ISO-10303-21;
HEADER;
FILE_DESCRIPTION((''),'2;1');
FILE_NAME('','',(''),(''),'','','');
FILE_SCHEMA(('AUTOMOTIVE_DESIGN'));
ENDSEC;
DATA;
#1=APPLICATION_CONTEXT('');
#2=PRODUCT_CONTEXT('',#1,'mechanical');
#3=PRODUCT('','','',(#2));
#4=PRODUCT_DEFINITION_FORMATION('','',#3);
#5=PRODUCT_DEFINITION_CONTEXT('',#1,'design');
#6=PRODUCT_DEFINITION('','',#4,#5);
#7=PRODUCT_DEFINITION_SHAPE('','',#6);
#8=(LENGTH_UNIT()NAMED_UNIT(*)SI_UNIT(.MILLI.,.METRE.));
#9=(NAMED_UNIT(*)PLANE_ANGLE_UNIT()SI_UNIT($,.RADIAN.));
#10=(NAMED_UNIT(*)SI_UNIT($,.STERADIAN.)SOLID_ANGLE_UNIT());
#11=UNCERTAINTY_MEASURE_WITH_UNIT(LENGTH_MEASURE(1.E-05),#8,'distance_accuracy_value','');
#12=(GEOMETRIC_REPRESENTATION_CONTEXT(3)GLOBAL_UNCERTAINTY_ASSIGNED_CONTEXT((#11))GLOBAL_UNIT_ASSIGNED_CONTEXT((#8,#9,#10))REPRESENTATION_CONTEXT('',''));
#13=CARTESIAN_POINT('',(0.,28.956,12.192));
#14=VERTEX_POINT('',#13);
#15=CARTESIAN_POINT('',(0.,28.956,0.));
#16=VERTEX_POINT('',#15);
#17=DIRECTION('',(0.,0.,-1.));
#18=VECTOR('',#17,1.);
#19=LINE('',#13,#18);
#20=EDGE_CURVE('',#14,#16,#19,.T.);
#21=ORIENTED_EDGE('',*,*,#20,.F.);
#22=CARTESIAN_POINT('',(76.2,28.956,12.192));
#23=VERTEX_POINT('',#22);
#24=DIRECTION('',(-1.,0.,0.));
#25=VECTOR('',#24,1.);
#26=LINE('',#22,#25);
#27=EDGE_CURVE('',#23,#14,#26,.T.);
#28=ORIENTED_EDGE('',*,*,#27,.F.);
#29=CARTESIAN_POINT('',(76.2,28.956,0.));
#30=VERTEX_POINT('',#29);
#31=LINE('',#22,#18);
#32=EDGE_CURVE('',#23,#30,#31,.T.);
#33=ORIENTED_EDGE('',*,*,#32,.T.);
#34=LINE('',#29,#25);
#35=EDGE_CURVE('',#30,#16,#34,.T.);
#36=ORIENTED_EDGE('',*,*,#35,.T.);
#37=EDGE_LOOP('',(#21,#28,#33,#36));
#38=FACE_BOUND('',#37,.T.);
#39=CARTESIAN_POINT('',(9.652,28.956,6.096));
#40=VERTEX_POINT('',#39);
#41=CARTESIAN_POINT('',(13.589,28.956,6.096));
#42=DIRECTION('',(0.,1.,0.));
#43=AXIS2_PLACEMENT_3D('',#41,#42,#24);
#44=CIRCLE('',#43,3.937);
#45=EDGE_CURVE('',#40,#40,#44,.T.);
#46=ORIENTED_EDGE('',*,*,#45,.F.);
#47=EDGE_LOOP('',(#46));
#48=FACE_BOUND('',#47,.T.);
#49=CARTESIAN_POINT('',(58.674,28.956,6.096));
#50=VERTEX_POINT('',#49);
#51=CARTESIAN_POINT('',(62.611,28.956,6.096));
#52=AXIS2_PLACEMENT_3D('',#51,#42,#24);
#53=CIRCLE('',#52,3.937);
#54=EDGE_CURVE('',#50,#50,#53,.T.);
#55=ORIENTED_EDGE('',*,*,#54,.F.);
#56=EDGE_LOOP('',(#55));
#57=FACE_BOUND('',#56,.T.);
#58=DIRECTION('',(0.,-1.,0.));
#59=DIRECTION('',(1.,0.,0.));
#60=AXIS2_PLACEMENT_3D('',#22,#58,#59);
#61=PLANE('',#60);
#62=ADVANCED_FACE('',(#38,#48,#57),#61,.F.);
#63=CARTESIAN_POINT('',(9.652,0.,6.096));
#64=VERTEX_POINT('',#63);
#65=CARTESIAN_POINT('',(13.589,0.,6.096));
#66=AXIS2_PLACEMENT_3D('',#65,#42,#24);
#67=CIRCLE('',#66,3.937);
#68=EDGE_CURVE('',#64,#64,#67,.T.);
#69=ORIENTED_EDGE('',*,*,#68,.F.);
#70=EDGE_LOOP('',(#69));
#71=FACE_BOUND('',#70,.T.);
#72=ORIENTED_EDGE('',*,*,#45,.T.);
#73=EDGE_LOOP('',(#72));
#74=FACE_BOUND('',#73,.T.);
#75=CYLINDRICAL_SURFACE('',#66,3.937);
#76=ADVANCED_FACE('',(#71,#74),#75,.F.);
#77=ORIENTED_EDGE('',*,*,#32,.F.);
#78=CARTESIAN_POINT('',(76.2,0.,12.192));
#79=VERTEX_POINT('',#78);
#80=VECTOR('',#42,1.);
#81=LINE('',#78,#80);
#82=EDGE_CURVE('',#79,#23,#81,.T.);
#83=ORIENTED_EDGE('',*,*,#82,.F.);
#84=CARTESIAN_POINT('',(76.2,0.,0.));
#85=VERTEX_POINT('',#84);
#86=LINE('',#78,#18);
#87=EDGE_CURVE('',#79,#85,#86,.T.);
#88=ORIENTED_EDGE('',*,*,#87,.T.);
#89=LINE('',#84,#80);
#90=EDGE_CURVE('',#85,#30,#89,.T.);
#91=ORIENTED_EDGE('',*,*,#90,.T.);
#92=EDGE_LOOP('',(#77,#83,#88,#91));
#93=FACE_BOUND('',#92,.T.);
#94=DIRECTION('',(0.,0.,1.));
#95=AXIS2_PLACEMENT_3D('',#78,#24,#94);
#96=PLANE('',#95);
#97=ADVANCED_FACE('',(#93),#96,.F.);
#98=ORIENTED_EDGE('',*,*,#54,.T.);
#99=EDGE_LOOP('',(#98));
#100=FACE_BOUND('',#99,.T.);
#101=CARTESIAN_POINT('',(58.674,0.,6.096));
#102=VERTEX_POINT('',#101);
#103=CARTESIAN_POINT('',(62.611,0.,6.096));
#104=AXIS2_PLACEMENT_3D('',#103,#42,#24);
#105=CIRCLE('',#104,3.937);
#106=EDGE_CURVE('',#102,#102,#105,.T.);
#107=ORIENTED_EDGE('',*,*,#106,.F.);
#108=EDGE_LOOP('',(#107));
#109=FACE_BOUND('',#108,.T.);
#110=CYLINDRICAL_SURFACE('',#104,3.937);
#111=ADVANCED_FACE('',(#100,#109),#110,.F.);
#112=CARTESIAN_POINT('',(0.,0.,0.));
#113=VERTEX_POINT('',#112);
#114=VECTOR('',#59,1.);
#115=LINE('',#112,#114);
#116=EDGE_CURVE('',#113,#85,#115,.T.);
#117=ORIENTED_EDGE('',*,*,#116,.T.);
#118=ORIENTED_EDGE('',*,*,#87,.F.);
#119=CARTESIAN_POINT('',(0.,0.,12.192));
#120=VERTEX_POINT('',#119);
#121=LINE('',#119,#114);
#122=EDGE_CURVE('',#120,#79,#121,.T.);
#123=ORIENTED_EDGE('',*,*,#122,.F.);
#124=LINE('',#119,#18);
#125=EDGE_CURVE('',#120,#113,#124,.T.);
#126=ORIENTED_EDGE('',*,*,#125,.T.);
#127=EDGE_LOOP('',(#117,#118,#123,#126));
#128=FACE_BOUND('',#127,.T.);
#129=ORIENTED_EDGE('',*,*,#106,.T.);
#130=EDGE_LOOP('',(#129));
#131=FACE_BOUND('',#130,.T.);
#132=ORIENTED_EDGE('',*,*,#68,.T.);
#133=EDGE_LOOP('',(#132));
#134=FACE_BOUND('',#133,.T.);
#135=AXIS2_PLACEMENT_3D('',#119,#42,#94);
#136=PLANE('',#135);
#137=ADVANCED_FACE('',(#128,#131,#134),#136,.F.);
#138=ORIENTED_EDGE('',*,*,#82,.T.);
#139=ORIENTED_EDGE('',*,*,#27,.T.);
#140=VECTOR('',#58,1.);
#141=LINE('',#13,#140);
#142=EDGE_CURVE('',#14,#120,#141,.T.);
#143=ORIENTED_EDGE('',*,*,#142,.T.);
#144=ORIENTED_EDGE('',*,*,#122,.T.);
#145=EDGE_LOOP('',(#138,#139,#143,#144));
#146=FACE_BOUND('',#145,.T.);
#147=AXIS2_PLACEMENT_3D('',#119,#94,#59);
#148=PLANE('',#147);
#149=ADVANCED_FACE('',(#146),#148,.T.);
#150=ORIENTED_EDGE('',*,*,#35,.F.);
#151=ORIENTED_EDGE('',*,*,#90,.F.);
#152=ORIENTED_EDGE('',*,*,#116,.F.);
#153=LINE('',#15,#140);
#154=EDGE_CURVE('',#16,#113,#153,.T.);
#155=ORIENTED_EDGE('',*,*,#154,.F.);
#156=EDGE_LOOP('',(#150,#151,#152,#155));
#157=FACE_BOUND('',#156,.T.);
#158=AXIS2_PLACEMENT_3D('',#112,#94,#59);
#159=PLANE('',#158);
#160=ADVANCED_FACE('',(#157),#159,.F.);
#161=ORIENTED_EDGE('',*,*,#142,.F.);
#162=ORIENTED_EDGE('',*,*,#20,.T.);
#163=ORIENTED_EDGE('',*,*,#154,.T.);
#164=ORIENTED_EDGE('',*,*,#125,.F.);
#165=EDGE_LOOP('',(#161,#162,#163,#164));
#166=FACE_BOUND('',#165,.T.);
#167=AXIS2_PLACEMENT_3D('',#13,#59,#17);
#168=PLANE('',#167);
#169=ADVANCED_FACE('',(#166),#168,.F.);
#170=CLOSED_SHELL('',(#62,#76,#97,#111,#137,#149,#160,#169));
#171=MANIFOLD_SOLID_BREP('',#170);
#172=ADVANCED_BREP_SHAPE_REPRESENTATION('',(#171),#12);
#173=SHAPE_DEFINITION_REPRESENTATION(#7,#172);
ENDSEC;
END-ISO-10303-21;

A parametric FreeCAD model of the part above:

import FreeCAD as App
import Part
import Sketcher

V = App.Vector
Q = App.Units.Quantity


def add_polygon(sketch, points):
    """Adds a closed chain of lines whose ends are joined by coincident constraints."""
    first, n = sketch.GeometryCount, len(points)
    for a, b in zip(points, points[1:] + points[:1]):
        sketch.addGeometry(Part.LineSegment(App.Vector(*a, 0), App.Vector(*b, 0)), False)
    for i in range(n):
        sketch.addConstraint(Sketcher.Constraint("Coincident", first + i, 2, first + (i + 1) % n, 1))

doc = App.newDocument("Part")
params = doc.addObject("Spreadsheet::Sheet", "Params")
for row, (alias, value) in enumerate([
    ("sketch1_width", "3 in"),
    ("sketch1_height", "1.14 in"),
    ("pad1_length", "0.48 in"),
    ("sketch2_diameter", "0.31 in"),
], start=1):
    params.set(f"A{row}", alias)
    params.set(f"B{row}", "=" + value)
    params.setAlias(f"B{row}", alias)

body = doc.addObject("PartDesign::Body", "Body")

# Sketch on XY plane
sketch1 = body.newObject("Sketcher::SketchObject", "Sketch")
sketch1.AttachmentSupport = (doc.getObject("XY_Plane"), [""])
sketch1.MapMode = "FlatFace"
add_polygon(sketch1, [(0, 28.956), (0, 0), (76.2, 0), (76.2, 28.956)])  # lines 0-3
sketch1.addConstraint(Sketcher.Constraint("Vertical", 0))
sketch1.addConstraint(Sketcher.Constraint("Horizontal", 1))
sketch1.addConstraint(Sketcher.Constraint("Vertical", 2))
sketch1.addConstraint(Sketcher.Constraint("Horizontal", 3))
sketch1.addConstraint(Sketcher.Constraint("Coincident", 0, 2, -1, 1))
sketch1.addConstraint(Sketcher.Constraint("DistanceX", 1, 1, 1, 2, Q("3 in")))
sketch1.addConstraint(Sketcher.Constraint("DistanceY", 0, 2, 0, 1, Q("1.14 in")))
sketch1.setExpression("Constraints[9]", "Params.sketch1_width")
sketch1.setExpression("Constraints[10]", "Params.sketch1_height")
pad1 = body.newObject("PartDesign::Pad", "Pad")
pad1.Profile = sketch1
pad1.setExpression("Length", "Params.pad1_length")

# Sketch on XZ plane
sketch2 = body.newObject("Sketcher::SketchObject", "Sketch001")
sketch2.AttachmentSupport = (doc.getObject("XZ_Plane"), [""])
sketch2.MapMode = "FlatFace"
sketch2.AttachmentOffset = App.Placement(V(0, 0, -1.14 * 25.4), App.Rotation())
sketch2.addGeometry(Part.Circle(V(62.611, 6.096, 0), V(0, 0, 1), 3.937), False)
sketch2.addGeometry(Part.Circle(V(13.589, 6.096, 0), V(0, 0, 1), 3.937), False)
sketch2.addConstraint(Sketcher.Constraint("Equal", 0, 1))
sketch2.addConstraint(Sketcher.Constraint("Horizontal", 0, 3, 1, 3))
sketch2.addConstraint(Sketcher.Constraint("Diameter", 0, Q("0.31 in")))
sketch2.addConstraint(Sketcher.Constraint("DistanceY", -1, 1, 0, 3, Q("0.24 in")))
sketch2.addConstraint(Sketcher.Constraint("DistanceX", 1, 3, 0, 3, Q("1.93 in")))
sketch2.addConstraint(Sketcher.Constraint("DistanceX", -1, 1, 0, 3, Q("2.465 in")))
sketch2.setExpression("Constraints[2]", "Params.sketch2_diameter")
pocket1 = body.newObject("PartDesign::Pocket", "Pocket")
pocket1.Profile = sketch2
pocket1.Type = "ThroughAll"
pocket1.Reversed = True

doc.recompute()
